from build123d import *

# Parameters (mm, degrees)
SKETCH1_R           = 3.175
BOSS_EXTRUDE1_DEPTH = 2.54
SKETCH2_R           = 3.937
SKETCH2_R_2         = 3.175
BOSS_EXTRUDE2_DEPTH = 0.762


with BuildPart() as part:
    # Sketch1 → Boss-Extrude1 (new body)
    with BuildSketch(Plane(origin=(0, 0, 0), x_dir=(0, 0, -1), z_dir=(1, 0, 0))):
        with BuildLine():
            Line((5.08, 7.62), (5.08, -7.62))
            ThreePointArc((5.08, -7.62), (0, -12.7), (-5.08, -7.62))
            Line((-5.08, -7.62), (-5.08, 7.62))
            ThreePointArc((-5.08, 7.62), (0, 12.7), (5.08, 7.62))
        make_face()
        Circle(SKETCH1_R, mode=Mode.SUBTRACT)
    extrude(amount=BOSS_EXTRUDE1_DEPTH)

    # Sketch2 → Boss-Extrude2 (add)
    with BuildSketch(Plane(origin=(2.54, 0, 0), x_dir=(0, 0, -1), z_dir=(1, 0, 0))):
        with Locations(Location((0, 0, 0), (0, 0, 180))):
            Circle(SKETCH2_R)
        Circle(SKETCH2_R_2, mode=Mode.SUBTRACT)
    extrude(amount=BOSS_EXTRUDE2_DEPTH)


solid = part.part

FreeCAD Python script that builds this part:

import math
import FreeCAD as App
import Part
import Sketcher
from FreeCAD import Vector
Q = App.Units.Quantity

doc = App.newDocument("Part")
body = doc.addObject("PartDesign::Body", "Body")

sketch1 = doc.addObject("Sketcher::SketchObject", "Sketch")
body.addObject(sketch1)
sketch1.AttachmentSupport = (doc.YZ_Plane, [""])
sketch1.MapMode = "FlatFace"
sketch1.addGeometry(Part.LineSegment(Vector(-7.62, -5.08, 0), Vector(7.62, -5.08, 0)), False)
sketch1.addGeometry(Part.ArcOfCircle(Part.Circle(Vector(7.62, 0, 0), Vector(0, 0, 1), 5.08), math.radians(-90), math.radians(90)), False)
sketch1.addGeometry(Part.LineSegment(Vector(7.62, 5.08, 0), Vector(-7.62, 5.08, 0)), False)
sketch1.addGeometry(Part.ArcOfCircle(Part.Circle(Vector(-7.62, 0, 0), Vector(0, 0, 1), 5.08), math.radians(90), math.radians(270)), False)
sketch1.addGeometry(Part.Circle(Vector(0, 0, 0), Vector(0, 0, 1), 3.175), False)
sketch1.addConstraint(Sketcher.Constraint("Tangent", 0, 2, 1, 1))
sketch1.addConstraint(Sketcher.Constraint("Tangent", 1, 2, 2, 1))
sketch1.addConstraint(Sketcher.Constraint("Tangent", 2, 2, 3, 1))
sketch1.addConstraint(Sketcher.Constraint("Tangent", 3, 2, 0, 1))
sketch1.addConstraint(Sketcher.Constraint("Horizontal", 0))
sketch1.addConstraint(Sketcher.Constraint("Horizontal", 2))
sketch1.addConstraint(Sketcher.Constraint("Coincident", 4, 3, -1, 1))
sketch1.addConstraint(Sketcher.Constraint("Symmetric", 1, 3, 3, 3, -1, 1))
sketch1.addConstraint(Sketcher.Constraint("Radius", 1, Q("0.2 in")))
sketch1.addConstraint(Sketcher.Constraint("Diameter", 4, Q("0.25 in")))
sketch1.addConstraint(Sketcher.Constraint("DistanceX", 0, 1, 0, 2, Q("0.6 in")))
pad1 = doc.addObject("PartDesign::Pad", "Pad")
body.addObject(pad1)
pad1.Profile = sketch1
pad1.Length = Q("0.1 in")

sketch2 = doc.addObject("Sketcher::SketchObject", "Sketch001")
body.addObject(sketch2)
sketch2.AttachmentSupport = (doc.YZ_Plane, [""])
sketch2.MapMode = "FlatFace"
sketch2.AttachmentOffset = App.Placement(Vector(0, 0, 0.1 * 25.4), App.Rotation())
sketch2.addGeometry(Part.Circle(Vector(0, 0, 0), Vector(0, 0, 1), 3.937), False)
sketch2.addGeometry(Part.Circle(Vector(0, 0, 0), Vector(0, 0, 1), 3.175), False)
sketch2.addConstraint(Sketcher.Constraint("Coincident", 0, 3, -1, 1))
sketch2.addConstraint(Sketcher.Constraint("Coincident", 1, 3, -1, 1))
sketch2.addConstraint(Sketcher.Constraint("Diameter", 0, Q("0.31 in")))
sketch2.addConstraint(Sketcher.Constraint("Diameter", 1, Q("0.25 in")))
pad2 = doc.addObject("PartDesign::Pad", "Pad001")
body.addObject(pad2)
pad2.Profile = sketch2
pad2.Length = Q("0.03 in")

doc.recompute()
